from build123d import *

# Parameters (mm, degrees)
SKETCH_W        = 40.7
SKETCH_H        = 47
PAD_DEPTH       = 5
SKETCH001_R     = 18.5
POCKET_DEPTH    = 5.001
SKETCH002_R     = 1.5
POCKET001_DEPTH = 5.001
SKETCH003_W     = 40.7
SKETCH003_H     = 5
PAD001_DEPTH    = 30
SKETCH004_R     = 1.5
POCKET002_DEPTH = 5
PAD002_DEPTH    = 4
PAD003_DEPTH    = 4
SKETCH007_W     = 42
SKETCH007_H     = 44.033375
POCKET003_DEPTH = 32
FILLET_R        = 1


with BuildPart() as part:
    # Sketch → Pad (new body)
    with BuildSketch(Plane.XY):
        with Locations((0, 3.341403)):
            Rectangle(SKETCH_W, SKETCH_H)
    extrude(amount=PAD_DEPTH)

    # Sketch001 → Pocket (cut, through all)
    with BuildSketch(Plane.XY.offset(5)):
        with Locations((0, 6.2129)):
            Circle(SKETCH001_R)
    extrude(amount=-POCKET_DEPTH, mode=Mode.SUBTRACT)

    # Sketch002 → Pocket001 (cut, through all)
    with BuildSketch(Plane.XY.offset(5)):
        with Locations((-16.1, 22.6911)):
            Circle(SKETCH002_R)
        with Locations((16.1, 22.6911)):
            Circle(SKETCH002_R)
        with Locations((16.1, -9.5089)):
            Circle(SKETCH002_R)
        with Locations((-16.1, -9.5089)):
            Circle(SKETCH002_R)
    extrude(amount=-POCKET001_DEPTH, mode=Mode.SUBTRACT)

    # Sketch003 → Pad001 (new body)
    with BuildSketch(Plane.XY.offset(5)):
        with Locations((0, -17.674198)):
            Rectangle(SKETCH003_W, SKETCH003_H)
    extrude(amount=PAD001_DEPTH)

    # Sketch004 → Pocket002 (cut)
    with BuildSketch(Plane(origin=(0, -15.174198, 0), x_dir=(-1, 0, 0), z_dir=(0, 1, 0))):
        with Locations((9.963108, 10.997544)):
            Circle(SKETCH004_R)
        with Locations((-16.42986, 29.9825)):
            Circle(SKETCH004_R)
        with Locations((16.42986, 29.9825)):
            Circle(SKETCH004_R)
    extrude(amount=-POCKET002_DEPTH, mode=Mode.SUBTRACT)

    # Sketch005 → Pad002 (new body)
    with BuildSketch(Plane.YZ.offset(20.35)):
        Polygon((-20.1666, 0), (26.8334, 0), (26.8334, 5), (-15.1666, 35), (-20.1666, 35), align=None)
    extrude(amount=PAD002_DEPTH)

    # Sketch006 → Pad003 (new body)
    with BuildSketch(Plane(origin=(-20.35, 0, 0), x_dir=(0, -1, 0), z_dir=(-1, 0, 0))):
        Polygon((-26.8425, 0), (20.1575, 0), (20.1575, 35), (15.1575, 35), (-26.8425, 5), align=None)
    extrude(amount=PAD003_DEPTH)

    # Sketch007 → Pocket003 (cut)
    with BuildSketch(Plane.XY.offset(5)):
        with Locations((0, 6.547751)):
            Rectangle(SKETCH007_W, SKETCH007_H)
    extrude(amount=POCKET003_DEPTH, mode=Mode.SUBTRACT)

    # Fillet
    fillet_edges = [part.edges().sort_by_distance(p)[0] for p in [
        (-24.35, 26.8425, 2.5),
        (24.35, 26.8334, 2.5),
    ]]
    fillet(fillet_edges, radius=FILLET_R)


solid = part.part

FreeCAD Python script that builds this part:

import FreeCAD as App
import Part
import Sketcher
from FreeCAD import Vector


def edges_at(feature, points):
    """Names of the edges that pass closest to the given points."""
    edges = feature.Shape.Edges
    near = lambda p: min(range(len(edges)), key=lambda i: edges[i].distToShape(Part.Vertex(*p))[0])
    return sorted({f"Edge{near(p) + 1}" for p in points})

doc = App.newDocument("Part")
params = doc.addObject("Spreadsheet::Sheet", "Params")
for row, (alias, value) in enumerate([
    ("sketch1_height", "47 mm"),
    ("sketch1_width", "40.7 mm"),
    ("pad1_length", "5 mm"),
    ("sketch2_diameter", "37 mm"),
    ("sketch3_diameter", "3 mm"),
    ("sketch4_height", "5 mm"),
    ("sketch4_width", "40.7 mm"),
    ("pad2_length", "30 mm"),
    ("sketch5_diameter", "3 mm"),
    ("pocket3_length", "5 mm"),
    ("sketch6_width", "47 mm"),
    ("sketch6_width2", "5 mm"),
    ("sketch6_height", "35 mm"),
    ("pad3_length", "4 mm"),
    ("sketch7_width", "47 mm"),
    ("sketch7_width2", "5 mm"),
    ("sketch7_height", "35 mm"),
    ("pad4_length", "4 mm"),
    ("sketch8_width", "42 mm"),
    ("pocket4_length", "32 mm"),
    ("fillet_radius", "1 mm"),
], start=1):
    params.set(f"A{row}", alias)
    params.set(f"B{row}", "=" + value)
    params.setAlias(f"B{row}", alias)

body = doc.addObject("PartDesign::Body", "Body")

sketch1 = doc.addObject("Sketcher::SketchObject", "Sketch")
body.addObject(sketch1)
sketch1.AttachmentSupport = (doc.XY_Plane, [""])
sketch1.MapMode = "FlatFace"
sketch1.addGeometry([
    Part.LineSegment(Vector(-20, 27, 0), Vector(-20, -20, 0)),
    Part.LineSegment(Vector(-20, -20, 0), Vector(20, -20, 0)),
    Part.LineSegment(Vector(20, -20, 0), Vector(20, 27, 0)),
    Part.LineSegment(Vector(20, 27, 0), Vector(-20, 27, 0)),
], False)
sketch1.addConstraint([
    Sketcher.Constraint("Coincident", 0, 2, 1, 1),
    Sketcher.Constraint("Coincident", 1, 2, 2, 1),
    Sketcher.Constraint("Coincident", 2, 2, 3, 1),
    Sketcher.Constraint("Coincident", 3, 2, 0, 1),
    Sketcher.Constraint("Vertical", 0),
    Sketcher.Constraint("Horizontal", 1),
    Sketcher.Constraint("Vertical", 2),
    Sketcher.Constraint("Horizontal", 3),
    Sketcher.Constraint("DistanceY", 0, 2, 0, 1, 47.0),
    Sketcher.Constraint("DistanceX", 1, 1, 1, 2, 40.7),
    Sketcher.Constraint("DistanceX", 0, 2, -1, 1, 20.35),
    Sketcher.Constraint("DistanceY", 0, 2, -1, 1, 20.158597),
])
sketch1.setExpression("Constraints[8]", "Params.sketch1_height")
sketch1.setExpression("Constraints[9]", "Params.sketch1_width")
pad1 = doc.addObject("PartDesign::Pad", "Pad")
body.addObject(pad1)
pad1.Profile = sketch1
pad1.setExpression("Length", "Params.pad1_length")

sketch2 = doc.addObject("Sketcher::SketchObject", "Sketch001")
body.addObject(sketch2)
sketch2.AttachmentSupport = (doc.XY_Plane, [""])
sketch2.MapMode = "FlatFace"
sketch2.AttachmentOffset = App.Placement(Vector(0, 0, 5), App.Rotation())
sketch2.addGeometry(Part.Circle(Vector(0, 6, 0), Vector(0, 0, 1), 18), False)
sketch2.addConstraint([
    Sketcher.Constraint("PointOnObject", 0, 3, -2),
    Sketcher.Constraint("Diameter", 0, 37.0),
    Sketcher.Constraint("DistanceY", -1, 1, 0, 3, 6.2129),
])
sketch2.setExpression("Constraints[1]", "Params.sketch2_diameter")
pocket1 = doc.addObject("PartDesign::Pocket", "Pocket")
body.addObject(pocket1)
pocket1.Profile = sketch2
pocket1.Type = "ThroughAll"

sketch3 = doc.addObject("Sketcher::SketchObject", "Sketch002")
body.addObject(sketch3)
sketch3.AttachmentSupport = (doc.XY_Plane, [""])
sketch3.MapMode = "FlatFace"
sketch3.AttachmentOffset = App.Placement(Vector(0, 0, 5), App.Rotation())
sketch3.addGeometry([
    Part.Circle(Vector(-16.1, 22.7, 0), Vector(0, 0, 1), 1.5),
    Part.Circle(Vector(16.1, 22.7, 0), Vector(0, 0, 1), 1.5),
    Part.Circle(Vector(16.1, -9.5, 0), Vector(0, 0, 1), 1.5),
    Part.Circle(Vector(-16.1, -9.5, 0), Vector(0, 0, 1), 1.5),
], False)
sketch3.addConstraint([
    Sketcher.Constraint("Equal", 0, 1),
    Sketcher.Constraint("Equal", 1, 2),
    Sketcher.Constraint("Equal", 2, 3),
    Sketcher.Constraint("Symmetric", 0, 3, 1, 3, -2),
    Sketcher.Constraint("Symmetric", 2, 3, 3, 3, -2),
    Sketcher.Constraint("Vertical", 1, 3, 2, 3),
    Sketcher.Constraint("Diameter", 0, 3.0),
    Sketcher.Constraint("DistanceX", 0, 3, -1, 1, 16.1),
    Sketcher.Constraint("DistanceY", 2, 3, 1, 3, 32.2),
    Sketcher.Constraint("DistanceY", -1, 1, 0, 3, 22.6911),
])
sketch3.setExpression("Constraints[6]", "Params.sketch3_diameter")
pocket2 = doc.addObject("PartDesign::Pocket", "Pocket001")
body.addObject(pocket2)
pocket2.Profile = sketch3
pocket2.Type = "ThroughAll"

sketch4 = doc.addObject("Sketcher::SketchObject", "Sketch003")
body.addObject(sketch4)
sketch4.AttachmentSupport = (doc.XY_Plane, [""])
sketch4.MapMode = "FlatFace"
sketch4.AttachmentOffset = App.Placement(Vector(0, 0, 5), App.Rotation())
sketch4.addGeometry([
    Part.LineSegment(Vector(-20, -15, 0), Vector(-20, -20, 0)),
    Part.LineSegment(Vector(-20, -20, 0), Vector(20, -20, 0)),
    Part.LineSegment(Vector(20, -20, 0), Vector(20, -15, 0)),
    Part.LineSegment(Vector(20, -15, 0), Vector(-20, -15, 0)),
], False)
sketch4.addConstraint([
    Sketcher.Constraint("Coincident", 0, 2, 1, 1),
    Sketcher.Constraint("Coincident", 1, 2, 2, 1),
    Sketcher.Constraint("Coincident", 2, 2, 3, 1),
    Sketcher.Constraint("Coincident", 3, 2, 0, 1),
    Sketcher.Constraint("Vertical", 0),
    Sketcher.Constraint("Horizontal", 1),
    Sketcher.Constraint("Vertical", 2),
    Sketcher.Constraint("Horizontal", 3),
    Sketcher.Constraint("DistanceY", 0, 2, 0, 1, 5.0),
    Sketcher.Constraint("DistanceX", 1, 1, 1, 2, 40.7),
    Sketcher.Constraint("DistanceX", 0, 2, -1, 1, 20.35),
    Sketcher.Constraint("DistanceY", 0, 2, -1, 1, 20.174198),
])
sketch4.setExpression("Constraints[8]", "Params.sketch4_height")
sketch4.setExpression("Constraints[9]", "Params.sketch4_width")
pad2 = doc.addObject("PartDesign::Pad", "Pad001")
body.addObject(pad2)
pad2.Profile = sketch4
pad2.setExpression("Length", "Params.pad2_length")

sketch5 = doc.addObject("Sketcher::SketchObject", "Sketch004")
body.addObject(sketch5)
sketch5.AttachmentSupport = (doc.XZ_Plane, [""])
sketch5.MapMode = "FlatFace"
sketch5.AttachmentOffset = App.Placement(Vector(0, 0, 15.174198), App.Rotation())
sketch5.addGeometry([
    Part.Circle(Vector(-10, 11, 0), Vector(0, 0, 1), 1.5),
    Part.Circle(Vector(16.4, 30, 0), Vector(0, 0, 1), 1.5),
    Part.Circle(Vector(-16.4, 30, 0), Vector(0, 0, 1), 1.5),
], False)
sketch5.addConstraint([
    Sketcher.Constraint("Equal", 0, 1),
    Sketcher.Constraint("Equal", 1, 2),
    Sketcher.Constraint("Symmetric", 1, 3, 2, 3, -2),
    Sketcher.Constraint("Diameter", 0, 3.0),
    Sketcher.Constraint("DistanceY", -1, 1, 1, 3, 29.9825),
    Sketcher.Constraint("DistanceX", -1, 1, 1, 3, 16.42986),
    Sketcher.Constraint("DistanceX", 0, 3, 1, 3, 26.392968),
    Sketcher.Constraint("DistanceY", -1, 1, 0, 3, 10.997544),
])
sketch5.setExpression("Constraints[3]", "Params.sketch5_diameter")
pocket3 = doc.addObject("PartDesign::Pocket", "Pocket002")
body.addObject(pocket3)
pocket3.Profile = sketch5
pocket3.setExpression("Length", "Params.pocket3_length")
pocket3.Reversed = True

sketch6 = doc.addObject("Sketcher::SketchObject", "Sketch005")
body.addObject(sketch6)
sketch6.AttachmentSupport = (doc.YZ_Plane, [""])
sketch6.MapMode = "FlatFace"
sketch6.AttachmentOffset = App.Placement(Vector(0, 0, 20.35), App.Rotation())
sketch6.addGeometry([
    Part.LineSegment(Vector(-20.2, 0, 0), Vector(26.8, 0, 0)),
    Part.LineSegment(Vector(26.8, 0, 0), Vector(26.8, 5, 0)),
    Part.LineSegment(Vector(26.8, 5, 0), Vector(-15.2, 35, 0)),
    Part.LineSegment(Vector(-15.2, 35, 0), Vector(-20.2, 35, 0)),
    Part.LineSegment(Vector(-20.2, 35, 0), Vector(-20.2, 0, 0)),
], False)
sketch6.addConstraint([
    Sketcher.Constraint("Coincident", 0, 2, 1, 1),
    Sketcher.Constraint("Coincident", 1, 2, 2, 1),
    Sketcher.Constraint("Coincident", 2, 2, 3, 1),
    Sketcher.Constraint("Coincident", 3, 2, 4, 1),
    Sketcher.Constraint("Coincident", 4, 2, 0, 1),
    Sketcher.Constraint("Horizontal", 0),
    Sketcher.Constraint("Vertical", 1),
    Sketcher.Constraint("Horizontal", 3),
    Sketcher.Constraint("Vertical", 4),
    Sketcher.Constraint("PointOnObject", 0, 2, -1),
    Sketcher.Constraint("Equal", 3, 1),
    Sketcher.Constraint("DistanceX", 0, 1, 0, 2, 47.0),
    Sketcher.Constraint("DistanceX", 3, 2, 3, 1, 5.0),
    Sketcher.Constraint("DistanceY", 4, 2, 4, 1, 35.0),
    Sketcher.Constraint("DistanceX", -1, 1, 0, 2, 26.8334),
])
sketch6.setExpression("Constraints[11]", "Params.sketch6_width")
sketch6.setExpression("Constraints[12]", "Params.sketch6_width2")
sketch6.setExpression("Constraints[13]", "Params.sketch6_height")
pad3 = doc.addObject("PartDesign::Pad", "Pad002")
body.addObject(pad3)
pad3.Profile = sketch6
pad3.setExpression("Length", "Params.pad3_length")

sketch7 = doc.addObject("Sketcher::SketchObject", "Sketch006")
body.addObject(sketch7)
sketch7.AttachmentSupport = (doc.YZ_Plane, [""])
sketch7.MapMode = "FlatFace"
sketch7.AttachmentOffset = App.Placement(Vector(0, 0, -20.35), App.Rotation())
sketch7.addGeometry([
    Part.LineSegment(Vector(26.8, 0, 0), Vector(-20.2, 0, 0)),
    Part.LineSegment(Vector(-20.2, 0, 0), Vector(-20.2, 35, 0)),
    Part.LineSegment(Vector(-20.2, 35, 0), Vector(-15.2, 35, 0)),
    Part.LineSegment(Vector(-15.2, 35, 0), Vector(26.8, 5, 0)),
    Part.LineSegment(Vector(26.8, 5, 0), Vector(26.8, 0, 0)),
], False)
sketch7.addConstraint([
    Sketcher.Constraint("Coincident", 0, 2, 1, 1),
    Sketcher.Constraint("Coincident", 1, 2, 2, 1),
    Sketcher.Constraint("Coincident", 2, 2, 3, 1),
    Sketcher.Constraint("Coincident", 3, 2, 4, 1),
    Sketcher.Constraint("Coincident", 4, 2, 0, 1),
    Sketcher.Constraint("Horizontal", 0),
    Sketcher.Constraint("Vertical", 1),
    Sketcher.Constraint("Horizontal", 2),
    Sketcher.Constraint("Vertical", 4),
    Sketcher.Constraint("PointOnObject", 0, 2, -1),
    Sketcher.Constraint("Equal", 2, 4),
    Sketcher.Constraint("DistanceX", 0, 2, 0, 1, 47.0),
    Sketcher.Constraint("DistanceX", 2, 1, 2, 2, 5.0),
    Sketcher.Constraint("DistanceY", 1, 1, 1, 2, 35.0),
    Sketcher.Constraint("DistanceX", 0, 2, -1, 1, 20.1575),
])
sketch7.setExpression("Constraints[11]", "Params.sketch7_width")
sketch7.setExpression("Constraints[12]", "Params.sketch7_width2")
sketch7.setExpression("Constraints[13]", "Params.sketch7_height")
pad4 = doc.addObject("PartDesign::Pad", "Pad003")
body.addObject(pad4)
pad4.Profile = sketch7
pad4.setExpression("Length", "Params.pad4_length")
pad4.Reversed = True

sketch8 = doc.addObject("Sketcher::SketchObject", "Sketch007")
body.addObject(sketch8)
sketch8.AttachmentSupport = (doc.XY_Plane, [""])
sketch8.MapMode = "FlatFace"
sketch8.AttachmentOffset = App.Placement(Vector(0, 0, 5), App.Rotation())
sketch8.addGeometry([
    Part.LineSegment(Vector(-21, 29, 0), Vector(-21, -15, 0)),
    Part.LineSegment(Vector(-21, -15, 0), Vector(21, -15, 0)),
    Part.LineSegment(Vector(21, -15, 0), Vector(21, 29, 0)),
    Part.LineSegment(Vector(21, 29, 0), Vector(-21, 29, 0)),
], False)
sketch8.addConstraint([
    Sketcher.Constraint("Coincident", 0, 2, 1, 1),
    Sketcher.Constraint("Coincident", 1, 2, 2, 1),
    Sketcher.Constraint("Coincident", 2, 2, 3, 1),
    Sketcher.Constraint("Coincident", 3, 2, 0, 1),
    Sketcher.Constraint("Vertical", 0),
    Sketcher.Constraint("Horizontal", 1),
    Sketcher.Constraint("Vertical", 2),
    Sketcher.Constraint("Horizontal", 3),
    Sketcher.Constraint("DistanceX", 1, 1, 1, 2, 42.0),
    Sketcher.Constraint("DistanceX", 0, 2, -1, 1, 21.0),
    Sketcher.Constraint("DistanceY", 0, 2, 0, 1, 44.033375),
    Sketcher.Constraint("DistanceY", -1, 1, 2, 2, 28.564439),
])
sketch8.setExpression("Constraints[8]", "Params.sketch8_width")
pocket4 = doc.addObject("PartDesign::Pocket", "Pocket003")
body.addObject(pocket4)
pocket4.Profile = sketch8
pocket4.setExpression("Length", "Params.pocket4_length")
pocket4.Reversed = True
doc.recompute()

fillet = doc.addObject("PartDesign::Fillet", "Fillet")
body.addObject(fillet)
fillet.Base = (pocket4, edges_at(pocket4, [(-24.35, 26.843, 2.5), (24.35, 26.833, 2.5)]))
fillet.setExpression("Radius", "Params.fillet_radius")

doc.recompute()
